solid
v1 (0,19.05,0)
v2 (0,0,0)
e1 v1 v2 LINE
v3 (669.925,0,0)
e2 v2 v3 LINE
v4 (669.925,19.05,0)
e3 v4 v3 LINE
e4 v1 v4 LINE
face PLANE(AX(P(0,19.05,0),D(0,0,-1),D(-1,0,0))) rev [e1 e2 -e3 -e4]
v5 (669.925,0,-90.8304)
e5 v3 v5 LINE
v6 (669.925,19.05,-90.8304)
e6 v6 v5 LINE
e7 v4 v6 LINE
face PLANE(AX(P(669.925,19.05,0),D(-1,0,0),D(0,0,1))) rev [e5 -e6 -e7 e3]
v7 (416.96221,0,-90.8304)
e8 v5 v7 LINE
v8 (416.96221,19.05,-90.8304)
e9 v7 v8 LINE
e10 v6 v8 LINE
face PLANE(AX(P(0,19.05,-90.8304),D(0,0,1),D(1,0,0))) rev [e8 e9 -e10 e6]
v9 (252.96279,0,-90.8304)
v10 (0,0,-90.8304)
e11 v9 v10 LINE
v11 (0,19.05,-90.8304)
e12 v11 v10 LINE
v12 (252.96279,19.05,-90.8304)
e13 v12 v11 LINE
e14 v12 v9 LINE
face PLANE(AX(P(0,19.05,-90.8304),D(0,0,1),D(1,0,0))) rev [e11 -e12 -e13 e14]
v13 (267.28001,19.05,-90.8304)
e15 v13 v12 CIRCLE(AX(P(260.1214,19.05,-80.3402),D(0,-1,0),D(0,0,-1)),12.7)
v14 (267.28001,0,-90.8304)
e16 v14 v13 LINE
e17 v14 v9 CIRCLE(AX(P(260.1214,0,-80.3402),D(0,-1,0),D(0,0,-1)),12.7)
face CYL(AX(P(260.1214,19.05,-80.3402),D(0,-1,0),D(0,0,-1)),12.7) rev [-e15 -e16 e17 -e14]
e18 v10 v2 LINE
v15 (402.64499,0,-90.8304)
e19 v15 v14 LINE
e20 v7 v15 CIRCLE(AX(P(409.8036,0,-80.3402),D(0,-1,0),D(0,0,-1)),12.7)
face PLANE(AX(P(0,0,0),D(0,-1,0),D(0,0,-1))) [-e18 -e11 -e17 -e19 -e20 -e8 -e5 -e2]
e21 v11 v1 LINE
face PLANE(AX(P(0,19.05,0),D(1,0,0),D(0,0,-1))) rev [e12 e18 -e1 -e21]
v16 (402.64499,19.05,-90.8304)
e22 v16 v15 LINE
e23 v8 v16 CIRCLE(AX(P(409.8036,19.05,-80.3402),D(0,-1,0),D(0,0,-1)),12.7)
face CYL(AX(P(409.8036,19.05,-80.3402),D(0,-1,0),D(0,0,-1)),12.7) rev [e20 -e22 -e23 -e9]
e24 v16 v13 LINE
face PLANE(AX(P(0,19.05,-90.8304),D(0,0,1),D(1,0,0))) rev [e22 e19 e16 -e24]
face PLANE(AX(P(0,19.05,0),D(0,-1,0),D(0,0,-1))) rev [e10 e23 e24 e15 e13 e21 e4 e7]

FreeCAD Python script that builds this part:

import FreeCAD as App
import Part
import Sketcher

V = App.Vector
Q = App.Units.Quantity

doc = App.newDocument("Part")
body = doc.addObject("PartDesign::Body", "Body")

# Sketch on XZ plane
sketch1 = body.newObject("Sketcher::SketchObject", "Sketch")
sketch1.AttachmentSupport = (doc.getObject("XZ_Plane"), [""])
sketch1.MapMode = "FlatFace"
sketch1.addGeometry([
    Part.LineSegment(V(0, -90.8304, 0), V(0, 0, 0)),
    Part.LineSegment(V(0, 0, 0), V(669.925, 0, 0)),
    Part.LineSegment(V(669.925, 0, 0), V(669.925, -90.8304, 0)),
    Part.LineSegment(V(669.925, -90.8304, 0), V(0, -90.8304, 0)),
], False)
sketch1.addConstraint([
    Sketcher.Constraint("Coincident", 0, 2, 1, 1),
    Sketcher.Constraint("Coincident", 1, 2, 2, 1),
    Sketcher.Constraint("Coincident", 2, 2, 3, 1),
    Sketcher.Constraint("Coincident", 3, 2, 0, 1),
    Sketcher.Constraint("Vertical", 0),
    Sketcher.Constraint("Horizontal", 1),
    Sketcher.Constraint("Vertical", 2),
    Sketcher.Constraint("Horizontal", 3),
    Sketcher.Constraint("Coincident", 0, 2, -1, 1),
    Sketcher.Constraint("DistanceX", 1, 1, 1, 2, Q("26.375 in")),
    Sketcher.Constraint("DistanceY", 0, 1, 0, 2, Q("3.576 in")),
])
pad1 = body.newObject("PartDesign::Pad", "Pad")
pad1.Profile = sketch1
pad1.Length = Q("0.75 in")
pad1.Reversed = True

# Sketch on XZ plane
sketch2 = body.newObject("Sketcher::SketchObject", "Sketch001")
sketch2.AttachmentSupport = (doc.getObject("XZ_Plane"), [""])
sketch2.MapMode = "FlatFace"
sketch2.addGeometry([
    Part.Circle(V(409.8036, -80.3402, 0), V(0, 0, 1), 12.7),
    Part.Circle(V(260.1214, -80.3402, 0), V(0, 0, 1), 12.7),
], False)
sketch2.addConstraint([
    Sketcher.Constraint("Equal", 0, 1),
    Sketcher.Constraint("Horizontal", 0, 3, 1, 3),
    Sketcher.Constraint("Diameter", 0, Q("1 in")),
    Sketcher.Constraint("DistanceX", -1, 1, 0, 3, Q("16.134 in")),
    Sketcher.Constraint("DistanceY", 0, 3, -1, 1, Q("3.163 in")),
    Sketcher.Constraint("DistanceX", -1, 1, 1, 3, Q("10.241 in")),
])
pocket1 = body.newObject("PartDesign::Pocket", "Pocket")
pocket1.Profile = sketch2
pocket1.Type = "ThroughAll"

doc.recompute()
